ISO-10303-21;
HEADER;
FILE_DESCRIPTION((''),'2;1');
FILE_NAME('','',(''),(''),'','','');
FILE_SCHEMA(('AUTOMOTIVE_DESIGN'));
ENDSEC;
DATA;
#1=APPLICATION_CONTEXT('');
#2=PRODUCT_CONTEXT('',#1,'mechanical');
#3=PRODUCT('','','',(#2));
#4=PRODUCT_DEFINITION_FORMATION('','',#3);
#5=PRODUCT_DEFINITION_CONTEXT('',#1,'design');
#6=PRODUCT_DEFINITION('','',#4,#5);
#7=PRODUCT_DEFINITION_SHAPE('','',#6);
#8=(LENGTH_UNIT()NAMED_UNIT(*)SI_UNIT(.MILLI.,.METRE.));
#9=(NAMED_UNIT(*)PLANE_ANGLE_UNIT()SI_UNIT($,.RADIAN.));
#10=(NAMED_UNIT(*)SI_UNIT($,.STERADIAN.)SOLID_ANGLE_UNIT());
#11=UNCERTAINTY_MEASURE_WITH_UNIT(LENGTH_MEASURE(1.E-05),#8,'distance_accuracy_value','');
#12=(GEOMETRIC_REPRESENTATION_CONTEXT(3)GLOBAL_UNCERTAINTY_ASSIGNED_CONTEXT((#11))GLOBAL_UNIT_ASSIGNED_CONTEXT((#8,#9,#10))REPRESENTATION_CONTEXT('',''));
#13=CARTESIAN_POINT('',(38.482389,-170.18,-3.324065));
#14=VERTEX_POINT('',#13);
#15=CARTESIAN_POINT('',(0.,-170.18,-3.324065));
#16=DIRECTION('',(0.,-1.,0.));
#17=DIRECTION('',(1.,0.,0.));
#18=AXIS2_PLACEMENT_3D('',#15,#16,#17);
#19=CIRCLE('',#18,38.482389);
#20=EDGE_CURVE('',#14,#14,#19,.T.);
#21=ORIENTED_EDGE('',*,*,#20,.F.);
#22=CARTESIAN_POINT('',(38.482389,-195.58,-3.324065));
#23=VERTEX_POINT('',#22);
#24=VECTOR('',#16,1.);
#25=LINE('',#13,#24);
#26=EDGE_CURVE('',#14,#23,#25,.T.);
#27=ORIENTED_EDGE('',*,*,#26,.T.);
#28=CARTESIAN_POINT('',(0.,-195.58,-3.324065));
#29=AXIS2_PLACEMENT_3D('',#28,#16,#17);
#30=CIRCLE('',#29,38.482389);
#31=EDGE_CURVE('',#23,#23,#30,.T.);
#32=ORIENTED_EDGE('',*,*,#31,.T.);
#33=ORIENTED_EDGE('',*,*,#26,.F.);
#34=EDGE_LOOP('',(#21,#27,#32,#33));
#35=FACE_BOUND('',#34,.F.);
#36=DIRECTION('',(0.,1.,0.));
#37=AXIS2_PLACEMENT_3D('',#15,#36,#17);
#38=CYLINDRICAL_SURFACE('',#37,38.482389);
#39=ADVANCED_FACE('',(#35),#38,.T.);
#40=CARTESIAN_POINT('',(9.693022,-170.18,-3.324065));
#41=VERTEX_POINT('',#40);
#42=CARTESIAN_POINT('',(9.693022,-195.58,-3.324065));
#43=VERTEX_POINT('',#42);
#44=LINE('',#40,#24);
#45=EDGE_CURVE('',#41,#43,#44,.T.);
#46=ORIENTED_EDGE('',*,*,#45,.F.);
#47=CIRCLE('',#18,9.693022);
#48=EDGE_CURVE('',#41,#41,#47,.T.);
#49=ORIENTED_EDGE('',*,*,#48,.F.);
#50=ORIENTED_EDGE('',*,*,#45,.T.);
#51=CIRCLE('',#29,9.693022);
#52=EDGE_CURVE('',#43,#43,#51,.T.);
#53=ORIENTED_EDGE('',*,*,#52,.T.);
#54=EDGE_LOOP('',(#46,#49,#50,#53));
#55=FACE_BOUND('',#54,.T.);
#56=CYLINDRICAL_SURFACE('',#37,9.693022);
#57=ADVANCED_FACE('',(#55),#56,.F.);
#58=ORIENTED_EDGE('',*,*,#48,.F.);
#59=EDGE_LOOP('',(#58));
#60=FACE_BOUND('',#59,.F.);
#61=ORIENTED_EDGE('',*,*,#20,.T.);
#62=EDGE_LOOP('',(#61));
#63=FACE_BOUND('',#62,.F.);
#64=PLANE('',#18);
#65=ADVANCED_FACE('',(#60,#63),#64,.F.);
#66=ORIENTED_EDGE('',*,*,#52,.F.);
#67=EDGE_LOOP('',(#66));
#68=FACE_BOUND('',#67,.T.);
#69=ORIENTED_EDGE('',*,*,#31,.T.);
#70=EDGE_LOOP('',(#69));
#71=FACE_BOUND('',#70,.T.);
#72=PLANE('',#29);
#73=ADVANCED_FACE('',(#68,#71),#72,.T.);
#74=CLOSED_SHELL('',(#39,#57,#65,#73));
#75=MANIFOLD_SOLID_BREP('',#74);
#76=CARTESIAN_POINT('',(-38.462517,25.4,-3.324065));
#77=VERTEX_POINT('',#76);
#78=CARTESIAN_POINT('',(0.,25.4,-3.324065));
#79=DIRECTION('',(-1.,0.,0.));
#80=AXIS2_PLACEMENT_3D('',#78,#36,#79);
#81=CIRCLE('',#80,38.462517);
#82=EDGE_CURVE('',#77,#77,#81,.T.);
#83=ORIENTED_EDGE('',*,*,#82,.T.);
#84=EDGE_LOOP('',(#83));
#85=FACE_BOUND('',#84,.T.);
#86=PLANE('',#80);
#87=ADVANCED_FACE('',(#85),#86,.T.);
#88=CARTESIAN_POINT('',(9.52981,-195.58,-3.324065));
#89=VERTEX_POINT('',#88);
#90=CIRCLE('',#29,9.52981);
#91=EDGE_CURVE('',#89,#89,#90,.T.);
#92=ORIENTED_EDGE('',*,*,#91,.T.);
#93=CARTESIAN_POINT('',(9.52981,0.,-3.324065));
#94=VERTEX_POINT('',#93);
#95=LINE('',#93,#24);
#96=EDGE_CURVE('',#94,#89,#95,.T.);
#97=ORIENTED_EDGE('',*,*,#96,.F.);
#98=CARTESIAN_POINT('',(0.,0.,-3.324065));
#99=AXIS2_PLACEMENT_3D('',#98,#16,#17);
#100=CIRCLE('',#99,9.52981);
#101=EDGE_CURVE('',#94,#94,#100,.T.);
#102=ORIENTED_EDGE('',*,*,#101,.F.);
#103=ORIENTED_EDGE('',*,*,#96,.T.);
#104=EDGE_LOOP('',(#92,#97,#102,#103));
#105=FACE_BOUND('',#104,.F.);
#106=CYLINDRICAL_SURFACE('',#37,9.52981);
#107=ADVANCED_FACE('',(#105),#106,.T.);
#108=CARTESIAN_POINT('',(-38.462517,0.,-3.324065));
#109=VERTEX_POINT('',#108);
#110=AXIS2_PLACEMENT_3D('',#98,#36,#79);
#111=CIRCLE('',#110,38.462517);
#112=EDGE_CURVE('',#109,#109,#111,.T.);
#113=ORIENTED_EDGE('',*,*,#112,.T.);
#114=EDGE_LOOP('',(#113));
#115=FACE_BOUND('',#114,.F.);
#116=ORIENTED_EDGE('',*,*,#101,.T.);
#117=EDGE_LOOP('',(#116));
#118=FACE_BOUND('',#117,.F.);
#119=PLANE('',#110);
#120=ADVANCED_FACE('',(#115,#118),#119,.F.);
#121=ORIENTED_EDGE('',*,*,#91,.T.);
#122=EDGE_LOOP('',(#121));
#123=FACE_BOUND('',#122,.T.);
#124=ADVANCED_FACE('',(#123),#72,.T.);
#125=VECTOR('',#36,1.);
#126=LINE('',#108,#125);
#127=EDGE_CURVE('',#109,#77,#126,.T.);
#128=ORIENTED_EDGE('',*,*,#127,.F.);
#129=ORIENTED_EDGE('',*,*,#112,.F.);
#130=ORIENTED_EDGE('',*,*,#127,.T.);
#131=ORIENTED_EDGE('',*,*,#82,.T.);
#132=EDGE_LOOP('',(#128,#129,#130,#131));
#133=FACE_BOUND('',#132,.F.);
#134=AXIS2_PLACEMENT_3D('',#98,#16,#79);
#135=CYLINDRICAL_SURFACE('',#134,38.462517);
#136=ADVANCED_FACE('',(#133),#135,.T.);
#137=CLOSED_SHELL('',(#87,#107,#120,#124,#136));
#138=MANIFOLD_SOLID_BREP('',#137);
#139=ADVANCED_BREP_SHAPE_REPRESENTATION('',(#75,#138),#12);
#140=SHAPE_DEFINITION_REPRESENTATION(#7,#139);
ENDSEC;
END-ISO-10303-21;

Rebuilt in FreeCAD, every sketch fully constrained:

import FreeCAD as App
import Part
import Sketcher
Q = App.Units.Quantity

doc = App.newDocument("Part")
body = doc.addObject("PartDesign::Body", "Body")

# Sketch on XZ plane
sketch1 = doc.addObject("Sketcher::SketchObject", "Sketch")
body.addObject(sketch1)
sketch1.AttachmentSupport = (doc.XZ_Plane, [""])
sketch1.MapMode = "FlatFace"
sketch1.addGeometry(Part.Circle(App.Vector(0, -3, 0), App.Vector(0, 0, 1), 10), False)
sketch1.addConstraint([
    Sketcher.Constraint("PointOnObject", 0, 3, -2),
    Sketcher.Constraint("Diameter", 0, Q("19.05962 mm")),
    Sketcher.Constraint("DistanceY", 0, 3, -1, 1, Q("3.324065 mm")),
])
pad1 = doc.addObject("PartDesign::Pad", "Pad")
body.addObject(pad1)
pad1.Profile = sketch1
pad1.Length = Q("6.7 in")

# Sketch on XZ plane
sketch2 = doc.addObject("Sketcher::SketchObject", "Sketch001")
body.addObject(sketch2)
sketch2.AttachmentSupport = (doc.XZ_Plane, [""])
sketch2.MapMode = "FlatFace"
sketch2.addGeometry(Part.Circle(App.Vector(0, -3, 0), App.Vector(0, 0, 1), 38), False)
sketch2.addConstraint([
    Sketcher.Constraint("PointOnObject", 0, 3, -2),
    Sketcher.Constraint("Diameter", 0, Q("76.925034 mm")),
    Sketcher.Constraint("DistanceY", 0, 3, -1, 1, Q("3.324065 mm")),
])
pad2 = doc.addObject("PartDesign::Pad", "Pad001")
body.addObject(pad2)
pad2.Profile = sketch2
pad2.Length = Q("1 in")
pad2.Reversed = True

# Sketch on XZ plane
sketch3 = doc.addObject("Sketcher::SketchObject", "Sketch002")
body.addObject(sketch3)
sketch3.AttachmentSupport = (doc.XZ_Plane, [""])
sketch3.MapMode = "FlatFace"
sketch3.AttachmentOffset = App.Placement(App.Vector(0, 0, 6.7 * 25.4), App.Rotation())
sketch3.addGeometry(Part.Circle(App.Vector(0, -3, 0), App.Vector(0, 0, 1), 10), False)
sketch3.addConstraint([
    Sketcher.Constraint("PointOnObject", 0, 3, -2),
    Sketcher.Constraint("Diameter", 0, Q("19.05962 mm")),
    Sketcher.Constraint("DistanceY", 0, 3, -1, 1, Q("3.324065 mm")),
])
pad3 = doc.addObject("PartDesign::Pad", "Pad002")
body.addObject(pad3)
pad3.Profile = sketch3
pad3.Length = Q("1 in")
body2 = doc.addObject("PartDesign::Body", "Body001")

# Sketch on XZ plane
sketch4 = doc.addObject("Sketcher::SketchObject", "Sketch003")
body2.addObject(sketch4)
sketch4.AttachmentSupport = (doc.getObject("XZ_Plane001"), [""])
sketch4.MapMode = "FlatFace"
sketch4.AttachmentOffset = App.Placement(App.Vector(0, 0, 6.7 * 25.4), App.Rotation())
sketch4.addGeometry([
    Part.Circle(App.Vector(0, -3, 0), App.Vector(0, 0, 1), 38),
    Part.Circle(App.Vector(0, -3, 0), App.Vector(0, 0, 1), 10),
], False)
sketch4.addConstraint([
    Sketcher.Constraint("Coincident", 1, 3, 0, 3),
    Sketcher.Constraint("PointOnObject", 0, 3, -2),
    Sketcher.Constraint("Diameter", 0, Q("76.964778 mm")),
    Sketcher.Constraint("Diameter", 1, Q("19.386044 mm")),
    Sketcher.Constraint("DistanceY", 0, 3, -1, 1, Q("3.324065 mm")),
])
pad4 = doc.addObject("PartDesign::Pad", "Pad003")
body2.addObject(pad4)
pad4.Profile = sketch4
pad4.Length = Q("1 in")

doc.recompute()
